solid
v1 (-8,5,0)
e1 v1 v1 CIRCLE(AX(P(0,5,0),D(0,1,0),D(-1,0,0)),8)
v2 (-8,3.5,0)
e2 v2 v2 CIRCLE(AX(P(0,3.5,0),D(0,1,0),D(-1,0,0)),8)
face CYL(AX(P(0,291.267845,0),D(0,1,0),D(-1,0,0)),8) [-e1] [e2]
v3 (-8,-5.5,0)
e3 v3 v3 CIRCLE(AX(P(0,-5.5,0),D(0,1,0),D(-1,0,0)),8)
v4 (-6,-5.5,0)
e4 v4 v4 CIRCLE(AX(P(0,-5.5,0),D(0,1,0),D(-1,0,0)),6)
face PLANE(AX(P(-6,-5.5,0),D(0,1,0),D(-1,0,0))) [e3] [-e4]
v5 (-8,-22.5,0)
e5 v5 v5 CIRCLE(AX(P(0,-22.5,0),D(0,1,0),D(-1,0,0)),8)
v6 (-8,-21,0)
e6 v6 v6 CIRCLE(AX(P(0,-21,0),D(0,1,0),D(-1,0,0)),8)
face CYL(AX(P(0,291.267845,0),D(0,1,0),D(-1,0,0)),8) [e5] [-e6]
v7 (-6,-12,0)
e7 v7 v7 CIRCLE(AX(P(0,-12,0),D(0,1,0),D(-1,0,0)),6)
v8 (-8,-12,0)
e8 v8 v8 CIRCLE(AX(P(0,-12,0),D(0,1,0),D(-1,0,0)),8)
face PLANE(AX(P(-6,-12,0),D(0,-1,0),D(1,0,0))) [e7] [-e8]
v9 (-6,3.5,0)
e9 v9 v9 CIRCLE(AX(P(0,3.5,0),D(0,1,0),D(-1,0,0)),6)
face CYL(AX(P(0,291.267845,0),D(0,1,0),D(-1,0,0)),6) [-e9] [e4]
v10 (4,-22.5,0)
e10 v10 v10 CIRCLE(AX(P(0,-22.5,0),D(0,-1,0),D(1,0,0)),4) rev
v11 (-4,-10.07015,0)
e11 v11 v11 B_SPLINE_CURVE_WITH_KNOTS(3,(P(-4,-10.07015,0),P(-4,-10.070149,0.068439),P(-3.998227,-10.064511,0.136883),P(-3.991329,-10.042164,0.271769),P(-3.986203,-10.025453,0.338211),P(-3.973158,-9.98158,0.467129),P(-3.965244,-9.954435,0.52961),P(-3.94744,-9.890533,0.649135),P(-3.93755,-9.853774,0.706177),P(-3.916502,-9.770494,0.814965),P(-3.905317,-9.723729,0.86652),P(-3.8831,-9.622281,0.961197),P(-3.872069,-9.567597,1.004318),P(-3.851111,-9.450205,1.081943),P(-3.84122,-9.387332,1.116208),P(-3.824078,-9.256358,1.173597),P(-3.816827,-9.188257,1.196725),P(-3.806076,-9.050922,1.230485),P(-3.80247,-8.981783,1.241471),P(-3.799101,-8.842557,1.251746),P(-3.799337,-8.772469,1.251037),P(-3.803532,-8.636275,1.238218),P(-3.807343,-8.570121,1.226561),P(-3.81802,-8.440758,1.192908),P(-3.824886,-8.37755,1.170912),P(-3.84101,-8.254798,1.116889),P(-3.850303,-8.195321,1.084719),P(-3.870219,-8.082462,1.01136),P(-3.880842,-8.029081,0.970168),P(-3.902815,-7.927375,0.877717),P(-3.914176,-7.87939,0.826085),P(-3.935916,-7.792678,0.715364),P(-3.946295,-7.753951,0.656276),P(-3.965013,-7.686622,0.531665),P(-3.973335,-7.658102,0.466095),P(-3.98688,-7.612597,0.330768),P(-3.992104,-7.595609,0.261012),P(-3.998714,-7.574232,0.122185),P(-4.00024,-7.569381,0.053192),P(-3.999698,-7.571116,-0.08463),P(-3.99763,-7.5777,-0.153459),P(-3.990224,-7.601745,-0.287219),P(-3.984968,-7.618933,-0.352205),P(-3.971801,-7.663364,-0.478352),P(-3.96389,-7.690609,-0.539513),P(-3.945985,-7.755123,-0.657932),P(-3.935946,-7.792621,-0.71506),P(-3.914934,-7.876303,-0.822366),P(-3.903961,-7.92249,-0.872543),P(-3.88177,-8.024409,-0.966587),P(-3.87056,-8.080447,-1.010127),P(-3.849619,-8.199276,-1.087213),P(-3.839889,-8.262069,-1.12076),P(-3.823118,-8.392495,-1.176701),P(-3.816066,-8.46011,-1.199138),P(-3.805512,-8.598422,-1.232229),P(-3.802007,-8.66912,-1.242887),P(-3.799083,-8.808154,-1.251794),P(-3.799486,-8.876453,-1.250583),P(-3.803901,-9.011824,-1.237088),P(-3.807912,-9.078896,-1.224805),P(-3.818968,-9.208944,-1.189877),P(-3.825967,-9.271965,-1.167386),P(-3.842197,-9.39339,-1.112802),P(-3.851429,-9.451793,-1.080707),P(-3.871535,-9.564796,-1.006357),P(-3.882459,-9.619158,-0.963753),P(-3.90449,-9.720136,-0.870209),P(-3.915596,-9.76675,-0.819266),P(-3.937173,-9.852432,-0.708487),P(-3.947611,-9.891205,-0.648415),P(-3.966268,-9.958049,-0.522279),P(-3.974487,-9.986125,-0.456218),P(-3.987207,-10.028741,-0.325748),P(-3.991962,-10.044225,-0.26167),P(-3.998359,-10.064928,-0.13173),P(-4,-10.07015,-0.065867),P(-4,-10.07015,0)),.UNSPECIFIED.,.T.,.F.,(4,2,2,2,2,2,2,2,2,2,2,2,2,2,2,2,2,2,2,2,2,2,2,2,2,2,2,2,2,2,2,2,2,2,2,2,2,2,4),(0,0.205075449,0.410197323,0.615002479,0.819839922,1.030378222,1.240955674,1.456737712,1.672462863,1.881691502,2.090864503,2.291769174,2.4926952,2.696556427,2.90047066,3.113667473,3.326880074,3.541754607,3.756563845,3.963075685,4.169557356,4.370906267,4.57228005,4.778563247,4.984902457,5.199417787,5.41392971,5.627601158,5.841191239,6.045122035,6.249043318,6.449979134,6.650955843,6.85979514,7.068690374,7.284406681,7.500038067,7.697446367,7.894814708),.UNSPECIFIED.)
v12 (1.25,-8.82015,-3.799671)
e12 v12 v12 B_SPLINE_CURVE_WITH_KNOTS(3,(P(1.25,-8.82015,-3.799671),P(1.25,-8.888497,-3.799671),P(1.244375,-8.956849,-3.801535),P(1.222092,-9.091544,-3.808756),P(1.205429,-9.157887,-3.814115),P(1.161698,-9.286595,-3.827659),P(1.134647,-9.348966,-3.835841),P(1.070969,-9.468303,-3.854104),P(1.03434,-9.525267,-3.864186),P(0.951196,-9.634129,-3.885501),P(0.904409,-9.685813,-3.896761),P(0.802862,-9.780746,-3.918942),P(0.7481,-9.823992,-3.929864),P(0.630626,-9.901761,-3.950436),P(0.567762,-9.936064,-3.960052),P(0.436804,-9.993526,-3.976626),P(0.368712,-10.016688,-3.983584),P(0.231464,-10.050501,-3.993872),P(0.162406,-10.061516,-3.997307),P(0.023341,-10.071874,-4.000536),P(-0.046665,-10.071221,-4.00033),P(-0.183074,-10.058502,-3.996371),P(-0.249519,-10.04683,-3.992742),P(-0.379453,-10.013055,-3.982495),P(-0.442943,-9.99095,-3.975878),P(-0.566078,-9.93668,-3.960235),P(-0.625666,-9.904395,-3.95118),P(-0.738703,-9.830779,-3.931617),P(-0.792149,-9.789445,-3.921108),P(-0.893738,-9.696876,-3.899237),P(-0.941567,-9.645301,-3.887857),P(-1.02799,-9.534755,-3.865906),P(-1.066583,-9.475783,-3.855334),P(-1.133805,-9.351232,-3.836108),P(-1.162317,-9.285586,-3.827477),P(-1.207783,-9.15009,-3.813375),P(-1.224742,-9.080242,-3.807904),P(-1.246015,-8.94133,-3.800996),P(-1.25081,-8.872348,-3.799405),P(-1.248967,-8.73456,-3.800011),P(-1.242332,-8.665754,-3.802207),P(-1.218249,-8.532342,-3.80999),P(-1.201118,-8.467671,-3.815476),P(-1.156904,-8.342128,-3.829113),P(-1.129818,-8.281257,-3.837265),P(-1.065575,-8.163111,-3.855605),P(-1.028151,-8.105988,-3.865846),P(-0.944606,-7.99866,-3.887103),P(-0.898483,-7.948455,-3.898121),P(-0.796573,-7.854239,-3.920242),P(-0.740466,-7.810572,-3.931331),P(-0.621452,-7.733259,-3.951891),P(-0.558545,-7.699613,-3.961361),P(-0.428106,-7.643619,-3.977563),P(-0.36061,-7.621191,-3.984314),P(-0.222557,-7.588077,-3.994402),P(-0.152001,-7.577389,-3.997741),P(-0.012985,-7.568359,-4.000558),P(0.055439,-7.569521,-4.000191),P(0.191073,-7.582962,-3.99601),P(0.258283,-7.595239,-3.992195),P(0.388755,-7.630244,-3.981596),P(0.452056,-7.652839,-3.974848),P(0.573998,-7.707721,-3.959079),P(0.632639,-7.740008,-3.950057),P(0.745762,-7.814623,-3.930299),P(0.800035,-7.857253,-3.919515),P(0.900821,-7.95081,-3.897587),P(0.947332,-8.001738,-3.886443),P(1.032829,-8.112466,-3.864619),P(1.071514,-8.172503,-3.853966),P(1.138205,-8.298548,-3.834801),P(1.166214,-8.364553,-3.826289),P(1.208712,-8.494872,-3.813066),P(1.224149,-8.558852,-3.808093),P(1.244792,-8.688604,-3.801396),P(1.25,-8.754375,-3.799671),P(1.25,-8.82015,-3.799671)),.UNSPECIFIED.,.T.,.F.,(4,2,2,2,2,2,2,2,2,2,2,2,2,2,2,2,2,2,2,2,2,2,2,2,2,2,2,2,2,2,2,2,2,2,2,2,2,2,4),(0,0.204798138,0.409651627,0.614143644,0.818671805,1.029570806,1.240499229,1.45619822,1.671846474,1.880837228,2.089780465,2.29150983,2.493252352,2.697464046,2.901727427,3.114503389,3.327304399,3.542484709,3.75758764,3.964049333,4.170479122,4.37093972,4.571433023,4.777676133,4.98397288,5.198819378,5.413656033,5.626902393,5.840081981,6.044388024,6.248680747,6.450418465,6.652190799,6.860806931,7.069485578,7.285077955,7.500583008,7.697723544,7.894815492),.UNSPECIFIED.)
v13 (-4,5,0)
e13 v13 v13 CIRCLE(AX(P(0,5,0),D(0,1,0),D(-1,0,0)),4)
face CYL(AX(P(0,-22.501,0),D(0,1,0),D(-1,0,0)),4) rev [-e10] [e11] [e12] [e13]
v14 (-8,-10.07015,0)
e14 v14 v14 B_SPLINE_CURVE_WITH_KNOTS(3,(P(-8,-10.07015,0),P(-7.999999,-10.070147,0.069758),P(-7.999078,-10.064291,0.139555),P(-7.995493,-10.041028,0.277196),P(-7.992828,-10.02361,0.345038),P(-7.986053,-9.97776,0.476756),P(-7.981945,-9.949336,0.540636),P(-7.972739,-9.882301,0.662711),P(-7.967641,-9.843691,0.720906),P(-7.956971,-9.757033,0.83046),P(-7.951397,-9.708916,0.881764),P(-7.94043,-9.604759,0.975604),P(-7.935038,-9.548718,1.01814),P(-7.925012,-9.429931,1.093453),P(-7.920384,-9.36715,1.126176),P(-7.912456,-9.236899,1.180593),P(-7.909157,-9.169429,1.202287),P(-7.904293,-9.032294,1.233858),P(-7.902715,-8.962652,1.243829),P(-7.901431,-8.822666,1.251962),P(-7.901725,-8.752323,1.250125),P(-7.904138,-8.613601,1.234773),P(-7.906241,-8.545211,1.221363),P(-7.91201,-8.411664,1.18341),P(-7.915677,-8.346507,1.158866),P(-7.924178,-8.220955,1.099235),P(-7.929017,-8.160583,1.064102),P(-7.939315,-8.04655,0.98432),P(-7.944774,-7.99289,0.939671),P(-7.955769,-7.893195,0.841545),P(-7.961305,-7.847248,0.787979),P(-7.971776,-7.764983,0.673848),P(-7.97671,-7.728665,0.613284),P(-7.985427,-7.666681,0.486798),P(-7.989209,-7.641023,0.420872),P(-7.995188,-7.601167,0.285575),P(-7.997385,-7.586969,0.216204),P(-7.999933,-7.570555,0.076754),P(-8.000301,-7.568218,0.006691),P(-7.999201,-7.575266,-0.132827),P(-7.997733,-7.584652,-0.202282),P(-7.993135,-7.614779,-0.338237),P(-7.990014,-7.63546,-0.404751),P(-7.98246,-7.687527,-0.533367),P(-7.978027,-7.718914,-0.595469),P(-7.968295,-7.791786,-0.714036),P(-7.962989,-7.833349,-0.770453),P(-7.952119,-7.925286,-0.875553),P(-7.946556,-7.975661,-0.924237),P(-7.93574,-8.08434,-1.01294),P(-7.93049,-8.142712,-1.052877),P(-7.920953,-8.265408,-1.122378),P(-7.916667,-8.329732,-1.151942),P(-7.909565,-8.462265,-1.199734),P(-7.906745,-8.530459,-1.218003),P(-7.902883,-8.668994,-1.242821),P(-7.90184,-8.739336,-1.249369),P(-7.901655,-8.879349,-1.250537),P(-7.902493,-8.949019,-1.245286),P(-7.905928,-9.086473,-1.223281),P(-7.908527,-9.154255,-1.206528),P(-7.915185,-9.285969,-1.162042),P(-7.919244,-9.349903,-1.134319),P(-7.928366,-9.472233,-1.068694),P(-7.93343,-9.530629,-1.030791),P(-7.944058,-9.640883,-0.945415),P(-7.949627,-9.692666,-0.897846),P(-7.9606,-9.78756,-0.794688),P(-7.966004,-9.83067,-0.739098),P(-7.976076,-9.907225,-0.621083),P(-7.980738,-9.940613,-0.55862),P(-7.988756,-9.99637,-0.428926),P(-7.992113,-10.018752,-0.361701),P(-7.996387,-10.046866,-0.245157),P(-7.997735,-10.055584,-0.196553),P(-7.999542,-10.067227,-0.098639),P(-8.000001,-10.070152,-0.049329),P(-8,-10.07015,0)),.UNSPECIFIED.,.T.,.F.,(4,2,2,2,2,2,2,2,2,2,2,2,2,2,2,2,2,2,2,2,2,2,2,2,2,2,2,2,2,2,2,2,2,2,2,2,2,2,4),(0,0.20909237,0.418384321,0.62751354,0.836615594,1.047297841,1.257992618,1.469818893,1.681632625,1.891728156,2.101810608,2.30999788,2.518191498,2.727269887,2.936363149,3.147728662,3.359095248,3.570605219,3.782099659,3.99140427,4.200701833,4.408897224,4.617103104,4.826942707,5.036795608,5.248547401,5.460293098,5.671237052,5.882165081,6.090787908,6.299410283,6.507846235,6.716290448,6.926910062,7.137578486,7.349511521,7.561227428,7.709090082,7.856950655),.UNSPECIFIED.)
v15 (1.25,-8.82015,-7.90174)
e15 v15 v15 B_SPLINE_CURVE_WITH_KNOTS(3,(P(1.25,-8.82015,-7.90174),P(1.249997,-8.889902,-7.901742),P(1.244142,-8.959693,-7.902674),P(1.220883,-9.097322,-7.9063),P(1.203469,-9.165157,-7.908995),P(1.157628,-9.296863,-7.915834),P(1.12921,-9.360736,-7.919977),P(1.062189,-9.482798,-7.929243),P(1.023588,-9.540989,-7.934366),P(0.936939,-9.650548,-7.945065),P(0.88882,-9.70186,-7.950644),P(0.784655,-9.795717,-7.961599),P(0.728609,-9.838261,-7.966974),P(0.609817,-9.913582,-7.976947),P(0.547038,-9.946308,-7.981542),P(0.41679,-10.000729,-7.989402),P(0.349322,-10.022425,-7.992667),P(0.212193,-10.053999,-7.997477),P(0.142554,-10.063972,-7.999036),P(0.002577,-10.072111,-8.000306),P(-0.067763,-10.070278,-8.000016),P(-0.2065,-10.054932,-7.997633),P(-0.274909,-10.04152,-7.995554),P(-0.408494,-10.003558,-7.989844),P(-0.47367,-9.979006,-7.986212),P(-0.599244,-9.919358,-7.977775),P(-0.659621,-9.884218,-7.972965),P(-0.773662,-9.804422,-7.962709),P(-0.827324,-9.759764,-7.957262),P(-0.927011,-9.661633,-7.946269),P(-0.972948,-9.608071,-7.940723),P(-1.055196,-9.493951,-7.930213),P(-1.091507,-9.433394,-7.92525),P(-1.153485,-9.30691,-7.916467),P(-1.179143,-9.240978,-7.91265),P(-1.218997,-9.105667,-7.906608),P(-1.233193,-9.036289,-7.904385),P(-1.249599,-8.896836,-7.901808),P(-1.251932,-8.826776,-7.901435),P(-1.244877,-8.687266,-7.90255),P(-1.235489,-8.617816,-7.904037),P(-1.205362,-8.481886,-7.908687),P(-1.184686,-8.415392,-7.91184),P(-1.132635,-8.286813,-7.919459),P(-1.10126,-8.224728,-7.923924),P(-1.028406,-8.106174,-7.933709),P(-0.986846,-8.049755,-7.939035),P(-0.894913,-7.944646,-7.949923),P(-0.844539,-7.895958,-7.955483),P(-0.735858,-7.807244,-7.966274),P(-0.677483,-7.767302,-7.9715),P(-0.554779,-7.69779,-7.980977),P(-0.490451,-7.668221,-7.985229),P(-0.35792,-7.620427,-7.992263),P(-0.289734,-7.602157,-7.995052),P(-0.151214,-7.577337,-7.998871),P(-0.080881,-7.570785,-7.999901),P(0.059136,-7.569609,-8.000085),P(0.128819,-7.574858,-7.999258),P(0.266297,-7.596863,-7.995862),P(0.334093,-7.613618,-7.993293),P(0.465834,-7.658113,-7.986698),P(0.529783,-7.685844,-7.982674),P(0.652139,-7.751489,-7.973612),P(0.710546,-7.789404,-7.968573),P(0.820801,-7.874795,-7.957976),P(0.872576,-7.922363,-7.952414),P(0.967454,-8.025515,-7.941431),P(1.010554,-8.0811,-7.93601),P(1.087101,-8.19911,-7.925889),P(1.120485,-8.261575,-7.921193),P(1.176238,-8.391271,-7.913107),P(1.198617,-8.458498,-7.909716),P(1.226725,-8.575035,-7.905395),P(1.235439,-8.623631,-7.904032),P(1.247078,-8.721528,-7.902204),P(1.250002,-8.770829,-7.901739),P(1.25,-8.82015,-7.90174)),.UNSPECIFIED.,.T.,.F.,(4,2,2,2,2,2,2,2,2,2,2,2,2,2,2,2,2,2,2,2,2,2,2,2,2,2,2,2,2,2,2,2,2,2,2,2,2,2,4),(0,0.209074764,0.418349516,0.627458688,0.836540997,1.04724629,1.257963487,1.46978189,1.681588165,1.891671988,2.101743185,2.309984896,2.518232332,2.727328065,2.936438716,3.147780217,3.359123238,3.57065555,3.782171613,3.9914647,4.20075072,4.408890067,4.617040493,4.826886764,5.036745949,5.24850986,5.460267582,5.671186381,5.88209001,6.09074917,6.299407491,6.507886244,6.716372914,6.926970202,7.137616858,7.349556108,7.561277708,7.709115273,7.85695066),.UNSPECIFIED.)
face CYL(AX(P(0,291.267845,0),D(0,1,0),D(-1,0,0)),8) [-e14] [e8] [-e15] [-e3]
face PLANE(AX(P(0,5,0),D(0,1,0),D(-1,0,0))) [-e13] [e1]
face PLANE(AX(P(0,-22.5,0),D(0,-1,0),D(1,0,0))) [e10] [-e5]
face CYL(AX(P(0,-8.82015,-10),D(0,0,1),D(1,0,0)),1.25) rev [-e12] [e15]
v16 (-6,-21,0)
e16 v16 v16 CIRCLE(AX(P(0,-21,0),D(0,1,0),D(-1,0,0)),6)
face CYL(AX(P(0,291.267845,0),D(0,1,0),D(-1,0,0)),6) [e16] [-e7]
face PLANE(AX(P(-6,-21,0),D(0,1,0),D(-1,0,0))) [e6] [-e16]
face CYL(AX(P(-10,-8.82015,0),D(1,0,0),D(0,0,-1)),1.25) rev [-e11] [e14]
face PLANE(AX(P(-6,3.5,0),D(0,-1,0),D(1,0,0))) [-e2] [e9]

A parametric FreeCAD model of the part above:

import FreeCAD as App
import Part
import Sketcher
from FreeCAD import Vector
Q = App.Units.Quantity


def add_polygon(sketch, points):
    """Adds a closed chain of lines whose ends are joined by coincident constraints."""
    first, n = sketch.GeometryCount, len(points)
    for a, b in zip(points, points[1:] + points[:1]):
        sketch.addGeometry(Part.LineSegment(App.Vector(*a, 0), App.Vector(*b, 0)), False)
    for i in range(n):
        sketch.addConstraint(Sketcher.Constraint("Coincident", first + i, 2, first + (i + 1) % n, 1))

doc = App.newDocument("Part")
params = doc.addObject("Spreadsheet::Sheet", "Params")
for row, (alias, value) in enumerate([
    ("sketch1_width", "8 mm"),
    ("sketch1_width2", "2 mm"),
    ("sketch1_height", "9 mm"),
    ("sketch1_height2", "1.5 mm"),
    ("sketch1_height3", "6.5 mm"),
    ("revolution_angle", "360 deg"),
    ("sketch2_diameter", "8 mm"),
    ("sketch3_diameter", "2.5 mm"),
    ("pocket2_length", "10 mm"),
], start=1):
    params.set(f"A{row}", alias)
    params.set(f"B{row}", "=" + value)
    params.setAlias(f"B{row}", alias)

body = doc.addObject("PartDesign::Body", "Body")

# Sketch on XY plane
sketch1 = doc.addObject("Sketcher::SketchObject", "Sketch")
body.addObject(sketch1)
sketch1.AttachmentSupport = (doc.XY_Plane, [""])
sketch1.MapMode = "FlatFace"
add_polygon(sketch1, [(0, 5), (-8, 5), (-8, 3.5), (-6, 3.5), (-6, -5.5), (-8, -5.5), (-8, -12), (-6, -12), (-6, -21), (-8, -21), (-8, -22.5), (0, -22.5)])  # lines 0-11
sketch1.addConstraint([
    Sketcher.Constraint("Horizontal", 0),
    Sketcher.Constraint("Vertical", 1),
    Sketcher.Constraint("Horizontal", 2),
    Sketcher.Constraint("Vertical", 3),
    Sketcher.Constraint("Horizontal", 4),
    Sketcher.Constraint("Vertical", 5),
    Sketcher.Constraint("Horizontal", 6),
    Sketcher.Constraint("Vertical", 7),
    Sketcher.Constraint("Horizontal", 8),
    Sketcher.Constraint("Vertical", 9),
    Sketcher.Constraint("Horizontal", 10),
    Sketcher.Constraint("Vertical", 11),
    Sketcher.Constraint("PointOnObject", 10, 2, -2),
    Sketcher.Constraint("Vertical", 1, 2, 4, 2),
    Sketcher.Constraint("Vertical", 3, 2, 6, 2),
    Sketcher.Constraint("Vertical", 5, 2, 8, 2),
    Sketcher.Constraint("Equal", 3, 7),
    Sketcher.Constraint("Equal", 1, 9),
    Sketcher.Constraint("DistanceX", 0, 2, 0, 1, Q("8 mm")),
    Sketcher.Constraint("DistanceX", 2, 1, 2, 2, Q("2 mm")),
    Sketcher.Constraint("DistanceY", 3, 2, 3, 1, Q("9 mm")),
    Sketcher.Constraint("DistanceY", 1, 2, 1, 1, Q("1.5 mm")),
    Sketcher.Constraint("DistanceY", 5, 2, 5, 1, Q("6.5 mm")),
    Sketcher.Constraint("DistanceY", -1, 1, 0, 2, Q("5 mm")),
])
sketch1.setExpression("Constraints[30]", "Params.sketch1_width")
sketch1.setExpression("Constraints[31]", "Params.sketch1_width2")
sketch1.setExpression("Constraints[32]", "Params.sketch1_height")
sketch1.setExpression("Constraints[33]", "Params.sketch1_height2")
sketch1.setExpression("Constraints[34]", "Params.sketch1_height3")
revolution = doc.addObject("PartDesign::Revolution", "Revolution")
body.addObject(revolution)
revolution.Profile = sketch1
revolution.ReferenceAxis = (sketch1, ["V_Axis"])
revolution.setExpression("Angle", "Params.revolution_angle")

# Sketch on XZ plane
sketch2 = doc.addObject("Sketcher::SketchObject", "Sketch001")
body.addObject(sketch2)
sketch2.AttachmentSupport = (doc.XZ_Plane, [""])
sketch2.MapMode = "FlatFace"
sketch2.AttachmentOffset = App.Placement(Vector(0, 0, -5), App.Rotation())
sketch2.addGeometry(Part.Circle(Vector(0, 0, 0), Vector(0, 0, 1), 4), False)
sketch2.addConstraint([
    Sketcher.Constraint("Coincident", 0, 3, -1, 1),
    Sketcher.Constraint("Diameter", 0, Q("8 mm")),
])
sketch2.setExpression("Constraints[1]", "Params.sketch2_diameter")
pocket1 = doc.addObject("PartDesign::Pocket", "Pocket")
body.addObject(pocket1)
pocket1.Profile = sketch2
pocket1.Type = "UpToFirst"
pocket1.Reversed = True

# Sketch on XY plane
sketch3 = doc.addObject("Sketcher::SketchObject", "Sketch002")
body.addObject(sketch3)
sketch3.AttachmentSupport = (doc.XY_Plane, [""])
sketch3.MapMode = "FlatFace"
sketch3.addGeometry(Part.Circle(Vector(0, -8.82015, 0), Vector(0, 0, 1), 1.25), False)
sketch3.addConstraint([
    Sketcher.Constraint("PointOnObject", 0, 3, -2),
    Sketcher.Constraint("Diameter", 0, Q("2.5 mm")),
    Sketcher.Constraint("DistanceY", 0, 3, -1, 1, Q("8.82015 mm")),
])
sketch3.setExpression("Constraints[1]", "Params.sketch3_diameter")
pocket2 = doc.addObject("PartDesign::Pocket", "Pocket001")
body.addObject(pocket2)
pocket2.Profile = sketch3
pocket2.setExpression("Length", "Params.pocket2_length")
doc.recompute()

polarpattern = doc.addObject("PartDesign::PolarPattern", "PolarPattern")
body.addObject(polarpattern)
polarpattern.Originals = [pocket2]
polarpattern.Axis = (doc.Y_Axis, [""])
polarpattern.Angle = 90
polarpattern.Occurrences = 2
body.Tip = polarpattern

doc.recompute()
